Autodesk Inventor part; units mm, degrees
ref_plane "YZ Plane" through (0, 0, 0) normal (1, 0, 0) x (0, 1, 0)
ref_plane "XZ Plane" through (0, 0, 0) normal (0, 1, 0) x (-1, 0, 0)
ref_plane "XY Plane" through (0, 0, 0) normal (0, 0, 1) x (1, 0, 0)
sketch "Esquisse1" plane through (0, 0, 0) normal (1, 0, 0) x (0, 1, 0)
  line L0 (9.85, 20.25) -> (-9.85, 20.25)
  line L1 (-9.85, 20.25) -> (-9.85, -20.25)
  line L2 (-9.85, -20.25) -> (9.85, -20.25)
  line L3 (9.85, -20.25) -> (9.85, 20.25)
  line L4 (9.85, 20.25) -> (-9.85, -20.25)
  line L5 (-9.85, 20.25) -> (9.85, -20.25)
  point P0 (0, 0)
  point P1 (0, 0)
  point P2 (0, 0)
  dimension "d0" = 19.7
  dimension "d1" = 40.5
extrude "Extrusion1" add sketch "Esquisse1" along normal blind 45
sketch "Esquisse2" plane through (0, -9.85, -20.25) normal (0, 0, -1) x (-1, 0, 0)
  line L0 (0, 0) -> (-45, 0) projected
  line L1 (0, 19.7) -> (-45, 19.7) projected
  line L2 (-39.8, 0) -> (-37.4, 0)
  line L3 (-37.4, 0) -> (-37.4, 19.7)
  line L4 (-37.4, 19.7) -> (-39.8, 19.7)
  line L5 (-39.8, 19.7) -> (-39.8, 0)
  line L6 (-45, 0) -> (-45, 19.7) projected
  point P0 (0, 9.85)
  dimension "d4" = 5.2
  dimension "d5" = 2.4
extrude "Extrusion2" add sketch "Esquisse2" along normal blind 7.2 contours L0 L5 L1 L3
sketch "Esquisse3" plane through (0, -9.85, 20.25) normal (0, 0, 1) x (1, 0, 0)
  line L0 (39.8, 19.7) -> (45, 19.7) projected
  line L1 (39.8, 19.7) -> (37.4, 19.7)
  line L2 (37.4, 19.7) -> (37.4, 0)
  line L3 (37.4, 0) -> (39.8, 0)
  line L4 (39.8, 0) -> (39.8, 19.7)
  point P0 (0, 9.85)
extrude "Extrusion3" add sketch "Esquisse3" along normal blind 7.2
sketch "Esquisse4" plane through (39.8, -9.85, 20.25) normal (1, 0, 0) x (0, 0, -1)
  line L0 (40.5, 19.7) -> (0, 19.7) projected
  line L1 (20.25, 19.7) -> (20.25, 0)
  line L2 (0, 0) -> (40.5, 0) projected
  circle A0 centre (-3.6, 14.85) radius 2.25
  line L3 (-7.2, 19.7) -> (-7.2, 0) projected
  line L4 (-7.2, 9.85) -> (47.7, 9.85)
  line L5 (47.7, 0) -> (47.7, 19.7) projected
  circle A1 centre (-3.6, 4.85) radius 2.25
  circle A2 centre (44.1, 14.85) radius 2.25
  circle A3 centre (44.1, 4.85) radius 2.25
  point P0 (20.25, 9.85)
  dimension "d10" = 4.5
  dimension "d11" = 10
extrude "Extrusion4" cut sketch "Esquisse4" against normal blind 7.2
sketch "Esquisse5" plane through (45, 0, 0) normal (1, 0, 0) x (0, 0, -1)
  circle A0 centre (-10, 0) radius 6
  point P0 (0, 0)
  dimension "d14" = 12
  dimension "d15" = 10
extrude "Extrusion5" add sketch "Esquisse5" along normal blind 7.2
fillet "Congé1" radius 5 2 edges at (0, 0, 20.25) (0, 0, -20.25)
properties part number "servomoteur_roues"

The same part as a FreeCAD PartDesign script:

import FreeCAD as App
import Part
import Sketcher
from FreeCAD import Vector


def edges_at(feature, points):
    """Names of the edges that pass closest to the given points."""
    edges = feature.Shape.Edges
    near = lambda p: min(range(len(edges)), key=lambda i: edges[i].distToShape(Part.Vertex(*p))[0])
    return sorted({f"Edge{near(p) + 1}" for p in points})

doc = App.newDocument("Part")
body = doc.addObject("PartDesign::Body", "Body")

# Sketch on YZ plane
sketch1 = body.newObject("Sketcher::SketchObject", "Sketch")
sketch1.AttachmentSupport = (doc.getObject("YZ_Plane"), [""])
sketch1.MapMode = "FlatFace"
sketch1.addGeometry([
    Part.LineSegment(Vector(10, 20, 0), Vector(-10, 20, 0)),
    Part.LineSegment(Vector(-10, 20, 0), Vector(-10, -20, 0)),
    Part.LineSegment(Vector(-10, -20, 0), Vector(10, -20, 0)),
    Part.LineSegment(Vector(10, -20, 0), Vector(10, 20, 0)),
], False)
sketch1.addConstraint([
    Sketcher.Constraint("Coincident", 0, 2, 1, 1),
    Sketcher.Constraint("Coincident", 1, 2, 2, 1),
    Sketcher.Constraint("Coincident", 2, 2, 3, 1),
    Sketcher.Constraint("Coincident", 3, 2, 0, 1),
    Sketcher.Constraint("Horizontal", 0),
    Sketcher.Constraint("Vertical", 1),
    Sketcher.Constraint("Horizontal", 2),
    Sketcher.Constraint("Vertical", 3),
    Sketcher.Constraint("Symmetric", 0, 2, 2, 2, -1, 1),
    Sketcher.Constraint("DistanceX", 0, 2, 0, 1, 19.7),
    Sketcher.Constraint("DistanceY", 1, 2, 1, 1, 40.5),
])
pad1 = body.newObject("PartDesign::Pad", "Pad")
pad1.Profile = sketch1
pad1.Length = 45

# Sketch on XY plane
sketch2 = body.newObject("Sketcher::SketchObject", "Sketch001")
sketch2.AttachmentSupport = (doc.getObject("XY_Plane"), [""])
sketch2.MapMode = "FlatFace"
sketch2.AttachmentOffset = App.Placement(Vector(0, 0, -20.25), App.Rotation())
sketch2.addGeometry([
    Part.LineSegment(Vector(39.8, -9.8, 0), Vector(37.4, -9.8, 0)),
    Part.LineSegment(Vector(37.4, -9.8, 0), Vector(37.4, 9.8, 0)),
    Part.LineSegment(Vector(37.4, 9.8, 0), Vector(39.8, 9.8, 0)),
    Part.LineSegment(Vector(39.8, 9.8, 0), Vector(39.8, -9.8, 0)),
], False)
sketch2.addConstraint([
    Sketcher.Constraint("Coincident", 0, 2, 1, 1),
    Sketcher.Constraint("Coincident", 1, 2, 2, 1),
    Sketcher.Constraint("Coincident", 2, 2, 3, 1),
    Sketcher.Constraint("Coincident", 3, 2, 0, 1),
    Sketcher.Constraint("Horizontal", 0),
    Sketcher.Constraint("Vertical", 1),
    Sketcher.Constraint("Horizontal", 2),
    Sketcher.Constraint("Vertical", 3),
    Sketcher.Constraint("DistanceX", 0, 2, 0, 1, 2.4),
    Sketcher.Constraint("DistanceY", 1, 1, 1, 2, 19.7),
    Sketcher.Constraint("DistanceX", -1, 1, 0, 2, 37.4),
    Sketcher.Constraint("DistanceY", 0, 2, -1, 1, 9.85),
])
pad2 = body.newObject("PartDesign::Pad", "Pad001")
pad2.Profile = sketch2
pad2.Length = 7.2
pad2.Reversed = True

# Sketch on XY plane
sketch3 = body.newObject("Sketcher::SketchObject", "Sketch002")
sketch3.AttachmentSupport = (doc.getObject("XY_Plane"), [""])
sketch3.MapMode = "FlatFace"
sketch3.AttachmentOffset = App.Placement(Vector(0, 0, 20.25), App.Rotation())
sketch3.addGeometry([
    Part.LineSegment(Vector(39.8, -9.8, 0), Vector(39.8, 9.8, 0)),
    Part.LineSegment(Vector(39.8, 9.8, 0), Vector(37.4, 9.8, 0)),
    Part.LineSegment(Vector(37.4, 9.8, 0), Vector(37.4, -9.8, 0)),
    Part.LineSegment(Vector(37.4, -9.8, 0), Vector(39.8, -9.8, 0)),
], False)
sketch3.addConstraint([
    Sketcher.Constraint("Coincident", 0, 2, 1, 1),
    Sketcher.Constraint("Coincident", 1, 2, 2, 1),
    Sketcher.Constraint("Coincident", 2, 2, 3, 1),
    Sketcher.Constraint("Coincident", 3, 2, 0, 1),
    Sketcher.Constraint("Vertical", 0),
    Sketcher.Constraint("Horizontal", 1),
    Sketcher.Constraint("Vertical", 2),
    Sketcher.Constraint("Horizontal", 3),
    Sketcher.Constraint("DistanceX", 1, 2, 1, 1, 2.4),
    Sketcher.Constraint("DistanceY", 0, 1, 0, 2, 19.7),
    Sketcher.Constraint("DistanceX", -1, 1, 0, 2, 39.8),
    Sketcher.Constraint("DistanceY", -1, 1, 0, 2, 9.85),
])
pad3 = body.newObject("PartDesign::Pad", "Pad002")
pad3.Profile = sketch3
pad3.Length = 7.2

# Sketch on YZ plane
sketch4 = body.newObject("Sketcher::SketchObject", "Sketch003")
sketch4.AttachmentSupport = (doc.getObject("YZ_Plane"), [""])
sketch4.MapMode = "FlatFace"
sketch4.AttachmentOffset = App.Placement(Vector(0, 0, 39.8), App.Rotation())
sketch4.addGeometry([
    Part.Circle(Vector(5, 23.9, 0), Vector(0, 0, 1), 2.2),
    Part.Circle(Vector(-5, 23.9, 0), Vector(0, 0, 1), 2.2),
    Part.Circle(Vector(5, -23.9, 0), Vector(0, 0, 1), 2.2),
    Part.Circle(Vector(-5, -23.9, 0), Vector(0, 0, 1), 2.2),
], False)
sketch4.addConstraint([
    Sketcher.Constraint("Equal", 0, 1),
    Sketcher.Constraint("Equal", 1, 2),
    Sketcher.Constraint("Equal", 2, 3),
    Sketcher.Constraint("Symmetric", 1, 3, 2, 3, -1, 1),
    Sketcher.Constraint("Symmetric", 0, 3, 3, 3, -1, 1),
    Sketcher.Constraint("Symmetric", 0, 3, 1, 3, -2),
    Sketcher.Constraint("Diameter", 0, 4.5),
    Sketcher.Constraint("DistanceX", 1, 3, 0, 3, 10.0),
    Sketcher.Constraint("DistanceY", 2, 3, 0, 3, 47.7),
])
pocket1 = body.newObject("PartDesign::Pocket", "Pocket")
pocket1.Profile = sketch4
pocket1.Length = 7.2

# Sketch on YZ plane
sketch5 = body.newObject("Sketcher::SketchObject", "Sketch004")
sketch5.AttachmentSupport = (doc.getObject("YZ_Plane"), [""])
sketch5.MapMode = "FlatFace"
sketch5.AttachmentOffset = App.Placement(Vector(0, 0, 45), App.Rotation())
sketch5.addGeometry(Part.Circle(Vector(0, 10, 0), Vector(0, 0, 1), 6), False)
sketch5.addConstraint([
    Sketcher.Constraint("PointOnObject", 0, 3, -2),
    Sketcher.Constraint("Diameter", 0, 12.0),
    Sketcher.Constraint("DistanceY", -1, 1, 0, 3, 10.0),
])
pad4 = body.newObject("PartDesign::Pad", "Pad003")
pad4.Profile = sketch5
pad4.Length = 7.2
doc.recompute()

fillet = body.newObject("PartDesign::Fillet", "Fillet")
fillet.Base = (pad4, edges_at(pad4, [(0, 0, 20.25), (0, 0, -20.25)]))
fillet.Radius = 5

doc.recompute()
